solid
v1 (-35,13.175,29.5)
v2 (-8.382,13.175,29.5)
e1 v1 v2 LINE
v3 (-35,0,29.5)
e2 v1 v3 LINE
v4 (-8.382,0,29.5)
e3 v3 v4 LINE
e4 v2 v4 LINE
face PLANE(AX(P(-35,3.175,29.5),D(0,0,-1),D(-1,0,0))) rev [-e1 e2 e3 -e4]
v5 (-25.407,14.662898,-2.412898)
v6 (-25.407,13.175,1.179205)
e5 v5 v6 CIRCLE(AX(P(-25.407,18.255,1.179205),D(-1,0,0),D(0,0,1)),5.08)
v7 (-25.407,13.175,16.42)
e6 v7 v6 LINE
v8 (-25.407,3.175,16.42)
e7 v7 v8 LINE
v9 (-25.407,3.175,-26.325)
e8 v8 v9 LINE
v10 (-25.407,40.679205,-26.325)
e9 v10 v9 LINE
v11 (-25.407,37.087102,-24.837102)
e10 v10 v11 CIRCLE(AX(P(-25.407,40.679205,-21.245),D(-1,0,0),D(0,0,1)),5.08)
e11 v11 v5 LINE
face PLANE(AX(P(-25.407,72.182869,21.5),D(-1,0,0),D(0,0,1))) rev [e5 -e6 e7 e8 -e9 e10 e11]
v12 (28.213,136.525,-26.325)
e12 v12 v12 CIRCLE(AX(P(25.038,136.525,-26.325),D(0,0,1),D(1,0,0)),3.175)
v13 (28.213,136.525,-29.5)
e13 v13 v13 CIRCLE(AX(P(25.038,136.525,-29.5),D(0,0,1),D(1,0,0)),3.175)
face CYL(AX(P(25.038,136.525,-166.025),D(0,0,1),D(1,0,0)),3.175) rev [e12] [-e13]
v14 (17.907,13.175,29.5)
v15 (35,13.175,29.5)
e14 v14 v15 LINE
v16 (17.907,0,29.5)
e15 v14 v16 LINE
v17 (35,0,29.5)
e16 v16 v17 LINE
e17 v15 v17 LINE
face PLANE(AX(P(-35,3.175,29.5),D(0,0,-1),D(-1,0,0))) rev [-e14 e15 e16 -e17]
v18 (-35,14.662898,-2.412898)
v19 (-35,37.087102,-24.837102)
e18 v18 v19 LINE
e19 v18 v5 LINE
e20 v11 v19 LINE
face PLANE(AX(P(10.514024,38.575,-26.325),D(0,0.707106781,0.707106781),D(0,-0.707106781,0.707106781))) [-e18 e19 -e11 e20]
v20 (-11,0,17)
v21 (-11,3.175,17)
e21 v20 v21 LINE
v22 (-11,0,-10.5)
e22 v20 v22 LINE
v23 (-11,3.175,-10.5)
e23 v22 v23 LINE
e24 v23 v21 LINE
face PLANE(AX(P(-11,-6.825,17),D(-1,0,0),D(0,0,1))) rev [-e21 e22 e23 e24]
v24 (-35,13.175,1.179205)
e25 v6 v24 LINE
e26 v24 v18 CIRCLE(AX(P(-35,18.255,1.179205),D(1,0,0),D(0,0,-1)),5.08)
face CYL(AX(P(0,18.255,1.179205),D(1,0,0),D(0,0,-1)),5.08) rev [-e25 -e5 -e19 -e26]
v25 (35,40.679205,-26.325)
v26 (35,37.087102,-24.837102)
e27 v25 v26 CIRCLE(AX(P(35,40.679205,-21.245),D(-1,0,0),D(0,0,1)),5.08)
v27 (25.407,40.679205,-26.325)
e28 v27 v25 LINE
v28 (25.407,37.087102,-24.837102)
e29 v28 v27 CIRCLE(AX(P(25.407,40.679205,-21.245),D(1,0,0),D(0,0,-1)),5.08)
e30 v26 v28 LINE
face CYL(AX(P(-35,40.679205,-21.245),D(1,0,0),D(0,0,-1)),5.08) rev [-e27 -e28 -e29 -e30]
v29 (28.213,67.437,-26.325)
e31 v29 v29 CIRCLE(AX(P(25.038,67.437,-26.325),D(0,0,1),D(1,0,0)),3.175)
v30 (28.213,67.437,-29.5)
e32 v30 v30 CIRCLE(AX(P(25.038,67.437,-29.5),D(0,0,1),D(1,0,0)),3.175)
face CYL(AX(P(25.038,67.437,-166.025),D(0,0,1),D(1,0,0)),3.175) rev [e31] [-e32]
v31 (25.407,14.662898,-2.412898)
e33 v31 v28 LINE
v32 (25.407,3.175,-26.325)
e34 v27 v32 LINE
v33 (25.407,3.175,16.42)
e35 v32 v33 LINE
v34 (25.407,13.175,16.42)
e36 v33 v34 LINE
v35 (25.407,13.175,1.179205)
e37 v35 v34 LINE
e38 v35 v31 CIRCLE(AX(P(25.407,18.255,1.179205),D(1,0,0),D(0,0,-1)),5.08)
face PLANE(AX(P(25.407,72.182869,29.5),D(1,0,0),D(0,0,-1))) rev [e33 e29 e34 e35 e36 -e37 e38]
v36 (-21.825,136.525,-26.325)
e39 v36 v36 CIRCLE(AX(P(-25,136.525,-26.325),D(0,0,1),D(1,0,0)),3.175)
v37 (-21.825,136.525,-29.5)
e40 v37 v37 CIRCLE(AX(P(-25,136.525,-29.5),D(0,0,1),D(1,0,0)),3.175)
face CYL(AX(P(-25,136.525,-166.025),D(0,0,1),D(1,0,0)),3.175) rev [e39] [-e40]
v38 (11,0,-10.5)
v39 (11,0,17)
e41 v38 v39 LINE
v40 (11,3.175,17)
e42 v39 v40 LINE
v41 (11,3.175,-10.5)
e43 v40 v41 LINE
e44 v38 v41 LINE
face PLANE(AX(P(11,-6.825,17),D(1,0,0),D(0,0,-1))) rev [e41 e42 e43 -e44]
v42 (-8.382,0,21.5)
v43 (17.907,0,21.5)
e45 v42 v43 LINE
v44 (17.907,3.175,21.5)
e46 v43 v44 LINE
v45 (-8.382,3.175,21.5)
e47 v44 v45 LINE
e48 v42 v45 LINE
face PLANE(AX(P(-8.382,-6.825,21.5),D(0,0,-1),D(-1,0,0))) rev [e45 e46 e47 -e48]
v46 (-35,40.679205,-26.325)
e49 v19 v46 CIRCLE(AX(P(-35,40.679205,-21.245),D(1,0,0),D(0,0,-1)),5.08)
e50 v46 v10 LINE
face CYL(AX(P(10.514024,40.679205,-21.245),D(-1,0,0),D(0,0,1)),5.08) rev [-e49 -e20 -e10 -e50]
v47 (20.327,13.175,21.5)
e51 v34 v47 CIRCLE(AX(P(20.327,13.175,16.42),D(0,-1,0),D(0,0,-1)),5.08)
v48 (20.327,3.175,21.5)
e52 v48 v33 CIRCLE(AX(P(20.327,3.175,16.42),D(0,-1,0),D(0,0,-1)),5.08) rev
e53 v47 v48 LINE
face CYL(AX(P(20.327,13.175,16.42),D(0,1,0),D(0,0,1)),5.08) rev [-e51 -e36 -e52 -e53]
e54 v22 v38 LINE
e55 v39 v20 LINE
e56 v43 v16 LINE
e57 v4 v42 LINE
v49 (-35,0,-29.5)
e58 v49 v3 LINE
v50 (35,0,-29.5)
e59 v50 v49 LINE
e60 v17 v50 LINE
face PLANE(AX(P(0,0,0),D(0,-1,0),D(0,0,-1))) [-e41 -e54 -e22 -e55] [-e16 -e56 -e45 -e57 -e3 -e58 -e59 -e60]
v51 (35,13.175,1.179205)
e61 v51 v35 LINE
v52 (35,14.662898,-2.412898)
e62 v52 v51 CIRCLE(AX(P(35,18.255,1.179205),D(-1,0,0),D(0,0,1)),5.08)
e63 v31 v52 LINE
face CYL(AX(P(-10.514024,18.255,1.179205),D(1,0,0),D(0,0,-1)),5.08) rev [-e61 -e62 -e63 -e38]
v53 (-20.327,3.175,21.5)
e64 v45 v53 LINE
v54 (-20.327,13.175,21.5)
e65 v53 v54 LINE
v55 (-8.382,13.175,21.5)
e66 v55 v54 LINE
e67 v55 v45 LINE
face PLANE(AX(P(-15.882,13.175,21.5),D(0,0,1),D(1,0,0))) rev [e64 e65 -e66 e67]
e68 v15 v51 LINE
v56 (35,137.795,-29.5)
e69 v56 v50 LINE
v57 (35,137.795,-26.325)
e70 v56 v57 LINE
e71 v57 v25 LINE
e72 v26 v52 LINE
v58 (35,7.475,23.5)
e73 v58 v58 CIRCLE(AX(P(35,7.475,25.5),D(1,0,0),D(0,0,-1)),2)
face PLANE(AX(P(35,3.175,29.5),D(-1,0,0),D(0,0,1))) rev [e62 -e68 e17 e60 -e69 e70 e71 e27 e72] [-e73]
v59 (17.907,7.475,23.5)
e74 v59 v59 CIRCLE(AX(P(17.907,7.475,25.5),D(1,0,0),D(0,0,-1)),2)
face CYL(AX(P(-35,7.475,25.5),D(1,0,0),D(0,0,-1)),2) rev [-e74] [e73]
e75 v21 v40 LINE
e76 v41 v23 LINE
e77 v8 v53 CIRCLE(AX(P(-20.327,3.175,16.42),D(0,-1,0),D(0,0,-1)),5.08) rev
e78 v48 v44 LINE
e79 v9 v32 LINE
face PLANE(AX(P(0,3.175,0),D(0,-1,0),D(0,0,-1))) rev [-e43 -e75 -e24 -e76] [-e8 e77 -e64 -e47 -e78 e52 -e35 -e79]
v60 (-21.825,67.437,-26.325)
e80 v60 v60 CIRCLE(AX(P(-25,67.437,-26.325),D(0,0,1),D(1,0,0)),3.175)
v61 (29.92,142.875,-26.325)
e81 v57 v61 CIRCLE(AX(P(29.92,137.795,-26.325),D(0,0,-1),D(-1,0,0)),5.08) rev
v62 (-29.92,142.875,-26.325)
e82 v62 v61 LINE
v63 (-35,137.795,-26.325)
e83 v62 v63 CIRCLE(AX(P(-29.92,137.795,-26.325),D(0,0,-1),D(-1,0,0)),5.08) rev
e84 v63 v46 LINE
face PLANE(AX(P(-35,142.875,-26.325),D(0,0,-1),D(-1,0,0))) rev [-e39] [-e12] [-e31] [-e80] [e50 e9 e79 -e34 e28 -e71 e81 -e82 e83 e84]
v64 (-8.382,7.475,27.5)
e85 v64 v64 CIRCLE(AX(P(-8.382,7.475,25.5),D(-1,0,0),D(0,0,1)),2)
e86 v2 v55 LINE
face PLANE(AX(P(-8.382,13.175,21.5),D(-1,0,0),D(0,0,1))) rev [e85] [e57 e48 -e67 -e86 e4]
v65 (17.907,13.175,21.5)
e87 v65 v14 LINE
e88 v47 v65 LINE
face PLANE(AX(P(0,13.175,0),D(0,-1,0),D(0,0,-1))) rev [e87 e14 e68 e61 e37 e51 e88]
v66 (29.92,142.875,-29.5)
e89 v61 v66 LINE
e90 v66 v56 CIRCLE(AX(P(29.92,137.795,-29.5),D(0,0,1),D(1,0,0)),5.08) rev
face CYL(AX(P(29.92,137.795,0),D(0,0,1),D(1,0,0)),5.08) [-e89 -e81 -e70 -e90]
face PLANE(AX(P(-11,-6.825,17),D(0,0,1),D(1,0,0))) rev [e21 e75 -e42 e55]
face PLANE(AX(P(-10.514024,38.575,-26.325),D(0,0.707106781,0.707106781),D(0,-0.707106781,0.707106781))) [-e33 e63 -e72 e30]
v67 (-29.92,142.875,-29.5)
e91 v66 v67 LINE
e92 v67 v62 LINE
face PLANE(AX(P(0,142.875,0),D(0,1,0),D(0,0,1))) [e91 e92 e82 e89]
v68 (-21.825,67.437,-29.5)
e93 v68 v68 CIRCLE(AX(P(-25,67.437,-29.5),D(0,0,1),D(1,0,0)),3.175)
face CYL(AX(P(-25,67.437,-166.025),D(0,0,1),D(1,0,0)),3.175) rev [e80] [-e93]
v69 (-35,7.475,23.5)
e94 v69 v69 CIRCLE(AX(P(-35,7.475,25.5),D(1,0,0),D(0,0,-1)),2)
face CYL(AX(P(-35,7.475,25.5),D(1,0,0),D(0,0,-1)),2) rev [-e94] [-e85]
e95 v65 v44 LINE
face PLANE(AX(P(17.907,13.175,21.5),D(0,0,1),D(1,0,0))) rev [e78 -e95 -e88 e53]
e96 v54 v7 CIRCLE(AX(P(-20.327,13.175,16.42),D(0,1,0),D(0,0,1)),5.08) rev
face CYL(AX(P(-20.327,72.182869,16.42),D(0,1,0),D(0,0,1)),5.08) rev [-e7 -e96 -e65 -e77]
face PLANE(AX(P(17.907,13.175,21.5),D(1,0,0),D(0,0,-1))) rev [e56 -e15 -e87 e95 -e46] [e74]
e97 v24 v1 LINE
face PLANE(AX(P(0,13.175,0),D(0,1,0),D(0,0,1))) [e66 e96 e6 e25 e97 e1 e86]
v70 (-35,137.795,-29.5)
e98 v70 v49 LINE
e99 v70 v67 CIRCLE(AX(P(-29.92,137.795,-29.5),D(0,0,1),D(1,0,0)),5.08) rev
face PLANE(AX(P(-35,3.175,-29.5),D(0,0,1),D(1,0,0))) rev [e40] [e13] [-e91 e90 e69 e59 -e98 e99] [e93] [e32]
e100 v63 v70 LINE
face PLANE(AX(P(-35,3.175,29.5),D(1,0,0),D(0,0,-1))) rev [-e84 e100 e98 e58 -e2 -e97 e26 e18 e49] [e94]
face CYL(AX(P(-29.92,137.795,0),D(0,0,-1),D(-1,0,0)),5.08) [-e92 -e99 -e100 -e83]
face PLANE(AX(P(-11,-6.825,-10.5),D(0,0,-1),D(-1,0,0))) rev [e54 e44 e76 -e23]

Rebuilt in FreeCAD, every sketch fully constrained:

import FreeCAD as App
import Part
import Sketcher
Q = App.Units.Quantity


def edges_at(feature, points):
    """Names of the edges that pass closest to the given points."""
    edges = feature.Shape.Edges
    near = lambda p: min(range(len(edges)), key=lambda i: edges[i].distToShape(Part.Vertex(*p))[0])
    return sorted({f"Edge{near(p) + 1}" for p in points})


def add_polygon(sketch, points):
    """Adds a closed chain of lines whose ends are joined by coincident constraints."""
    first, n = sketch.GeometryCount, len(points)
    for a, b in zip(points, points[1:] + points[:1]):
        sketch.addGeometry(Part.LineSegment(App.Vector(*a, 0), App.Vector(*b, 0)), False)
    for i in range(n):
        sketch.addConstraint(Sketcher.Constraint("Coincident", first + i, 2, first + (i + 1) % n, 1))

doc = App.newDocument("Part")
body = doc.addObject("PartDesign::Body", "Body")

# Sketch on XZ plane
sketch1 = body.newObject("Sketcher::SketchObject", "Sketch")
sketch1.AttachmentSupport = (doc.getObject("XZ_Plane"), [""])
sketch1.MapMode = "FlatFace"
add_polygon(sketch1, [(-35, -30), (-35, 30), (35, 30), (35, -30)])  # lines 0-3
sketch1.addConstraint(Sketcher.Constraint("Vertical", 0))
sketch1.addConstraint(Sketcher.Constraint("Horizontal", 1))
sketch1.addConstraint(Sketcher.Constraint("Vertical", 2))
sketch1.addConstraint(Sketcher.Constraint("Horizontal", 3))
sketch1.addConstraint(Sketcher.Constraint("Symmetric", 0, 2, 2, 2, -1, 1))
sketch1.addConstraint(Sketcher.Constraint("DistanceX", 1, 1, 1, 2, Q("70 mm")))
sketch1.addConstraint(Sketcher.Constraint("DistanceY", 0, 1, 0, 2, Q("59 mm")))
pad1 = body.newObject("PartDesign::Pad", "Pad")
pad1.Profile = sketch1
pad1.Length = 3.175
pad1.Reversed = True

# Sketch on XZ plane
sketch2 = body.newObject("Sketcher::SketchObject", "Sketch001")
sketch2.AttachmentSupport = (doc.getObject("XZ_Plane"), [""])
sketch2.MapMode = "FlatFace"
sketch2.AttachmentOffset = App.Placement(App.Vector(0, 0, -3.175), App.Rotation())
add_polygon(sketch2, [(-35, -29.5), (-35, -26.3), (35, -26.3), (35, -29.5)])  # lines 0-3
sketch2.addConstraint(Sketcher.Constraint("Vertical", 0))
sketch2.addConstraint(Sketcher.Constraint("Horizontal", 1))
sketch2.addConstraint(Sketcher.Constraint("Vertical", 2))
sketch2.addConstraint(Sketcher.Constraint("Horizontal", 3))
sketch2.addConstraint(Sketcher.Constraint("DistanceX", 1, 1, 1, 2, Q("70 mm")))
sketch2.addConstraint(Sketcher.Constraint("DistanceX", 0, 2, -1, 1, Q("35 mm")))
sketch2.addConstraint(Sketcher.Constraint("DistanceY", 2, 2, -1, 1, Q("29.5 mm")))
sketch2.addConstraint(Sketcher.Constraint("DistanceY", 0, 1, 0, 2, Q("3.175 mm")))
pad2 = body.newObject("PartDesign::Pad", "Pad001")
pad2.Profile = sketch2
pad2.Length = 139.7
pad2.Reversed = True

# Sketch on XZ plane
sketch3 = body.newObject("Sketcher::SketchObject", "Sketch002")
sketch3.AttachmentSupport = (doc.getObject("XZ_Plane"), [""])
sketch3.MapMode = "FlatFace"
sketch3.AttachmentOffset = App.Placement(App.Vector(0, 0, -3.175), App.Rotation())
add_polygon(sketch3, [(-16, 22), (-16, 30), (-8, 30), (-8, 22)])  # lines 0-3
add_polygon(sketch3, [(18, 22), (18, 30), (25, 30), (25, 22)])  # lines 4-7
sketch3.addConstraint(Sketcher.Constraint("Vertical", 0))
sketch3.addConstraint(Sketcher.Constraint("Horizontal", 1))
sketch3.addConstraint(Sketcher.Constraint("Vertical", 2))
sketch3.addConstraint(Sketcher.Constraint("Horizontal", 3))
sketch3.addConstraint(Sketcher.Constraint("Vertical", 4))
sketch3.addConstraint(Sketcher.Constraint("Horizontal", 5))
sketch3.addConstraint(Sketcher.Constraint("Vertical", 6))
sketch3.addConstraint(Sketcher.Constraint("Horizontal", 7))
sketch3.addConstraint(Sketcher.Constraint("Horizontal", 1, 2, 4, 2))
sketch3.addConstraint(Sketcher.Constraint("Horizontal", 3, 2, 6, 2))
sketch3.addConstraint(Sketcher.Constraint("Equal", 3, 5))
sketch3.addConstraint(Sketcher.Constraint("DistanceY", 0, 1, 0, 2, Q("8 mm")))
sketch3.addConstraint(Sketcher.Constraint("DistanceX", 1, 1, 1, 2, Q("7.5 mm")))
sketch3.addConstraint(Sketcher.Constraint("DistanceY", -1, 1, 0, 2, Q("29.5 mm")))
sketch3.addConstraint(Sketcher.Constraint("DistanceX", 0, 2, -1, 1, Q("15.882 mm")))
sketch3.addConstraint(Sketcher.Constraint("DistanceX", -1, 1, 4, 2, Q("17.907 mm")))
pad3 = body.newObject("PartDesign::Pad", "Pad002")
pad3.Profile = sketch3
pad3.Length = 10
pad3.Reversed = True

# Sketch on XZ plane
sketch4 = body.newObject("Sketcher::SketchObject", "Sketch003")
sketch4.AttachmentSupport = (doc.getObject("XZ_Plane"), [""])
sketch4.MapMode = "FlatFace"
sketch4.AttachmentOffset = App.Placement(App.Vector(0, 0, -3.175), App.Rotation())
add_polygon(sketch4, [(-8, 22), (-8, 30), (18, 30), (18, 22)])  # lines 0-3
sketch4.addConstraint(Sketcher.Constraint("Vertical", 0))
sketch4.addConstraint(Sketcher.Constraint("Horizontal", 1))
sketch4.addConstraint(Sketcher.Constraint("Vertical", 2))
sketch4.addConstraint(Sketcher.Constraint("Horizontal", 3))
sketch4.addConstraint(Sketcher.Constraint("DistanceY", 0, 1, 0, 2, Q("8 mm")))
sketch4.addConstraint(Sketcher.Constraint("DistanceY", -1, 1, 0, 2, Q("29.5 mm")))
sketch4.addConstraint(Sketcher.Constraint("DistanceX", 1, 1, 1, 2, Q("26.289 mm")))
sketch4.addConstraint(Sketcher.Constraint("DistanceX", 0, 2, -1, 1, Q("8.382 mm")))
pocket1 = body.newObject("PartDesign::Pocket", "Pocket")
pocket1.Profile = sketch4
pocket1.Length = 10
pocket1.Reversed = True

# Sketch on XY plane
sketch5 = body.newObject("Sketcher::SketchObject", "Sketch004")
sketch5.AttachmentSupport = (doc.getObject("XY_Plane"), [""])
sketch5.MapMode = "FlatFace"
sketch5.AttachmentOffset = App.Placement(App.Vector(0, 0, -26.325), App.Rotation())
sketch5.addGeometry(Part.Circle(App.Vector(-25, 136.5, 0), App.Vector(0, 0, 1), 3.2), False)
sketch5.addGeometry(Part.Circle(App.Vector(25, 136.5, 0), App.Vector(0, 0, 1), 3.2), False)
sketch5.addGeometry(Part.Circle(App.Vector(25, 67.4, 0), App.Vector(0, 0, 1), 3.2), False)
sketch5.addGeometry(Part.Circle(App.Vector(-25, 67.4, 0), App.Vector(0, 0, 1), 3.2), False)
sketch5.addConstraint(Sketcher.Constraint("Equal", 0, 1))
sketch5.addConstraint(Sketcher.Constraint("Equal", 1, 2))
sketch5.addConstraint(Sketcher.Constraint("Equal", 2, 3))
sketch5.addConstraint(Sketcher.Constraint("Horizontal", 0, 3, 1, 3))
sketch5.addConstraint(Sketcher.Constraint("Horizontal", 2, 3, 3, 3))
sketch5.addConstraint(Sketcher.Constraint("Vertical", 1, 3, 2, 3))
sketch5.addConstraint(Sketcher.Constraint("Vertical", 0, 3, 3, 3))
sketch5.addConstraint(Sketcher.Constraint("Diameter", 0, Q("6.35 mm")))
sketch5.addConstraint(Sketcher.Constraint("DistanceX", 0, 3, -1, 1, Q("25 mm")))
sketch5.addConstraint(Sketcher.Constraint("DistanceY", -1, 1, 0, 3, Q("136.525 mm")))
sketch5.addConstraint(Sketcher.Constraint("DistanceX", -1, 1, 1, 3, Q("25.038 mm")))
sketch5.addConstraint(Sketcher.Constraint("DistanceY", -1, 1, 2, 3, Q("67.437 mm")))
pocket2 = body.newObject("PartDesign::Pocket", "Pocket001")
pocket2.Profile = sketch5
pocket2.Length = 139.7

# Sketch on XZ plane
sketch6 = body.newObject("Sketcher::SketchObject", "Sketch005")
sketch6.AttachmentSupport = (doc.getObject("XZ_Plane"), [""])
sketch6.MapMode = "FlatFace"
sketch6.AttachmentOffset = App.Placement(App.Vector(0, 0, -3.175), App.Rotation())
add_polygon(sketch6, [(25, -26), (25, 30), (35, 30), (35, -26)])  # lines 0-3
add_polygon(sketch6, [(-25, -26), (-35, -26), (-35, 30), (-16, 30), (-16, 22), (-25, 22)])  # lines 4-9
sketch6.addConstraint(Sketcher.Constraint("Vertical", 0))
sketch6.addConstraint(Sketcher.Constraint("Horizontal", 1))
sketch6.addConstraint(Sketcher.Constraint("Vertical", 2))
sketch6.addConstraint(Sketcher.Constraint("Horizontal", 3))
sketch6.addConstraint(Sketcher.Constraint("Horizontal", 4))
sketch6.addConstraint(Sketcher.Constraint("Vertical", 5))
sketch6.addConstraint(Sketcher.Constraint("Horizontal", 6))
sketch6.addConstraint(Sketcher.Constraint("Vertical", 7))
sketch6.addConstraint(Sketcher.Constraint("Horizontal", 8))
sketch6.addConstraint(Sketcher.Constraint("Vertical", 9))
sketch6.addConstraint(Sketcher.Constraint("Symmetric", 2, 2, 4, 2, -2))
sketch6.addConstraint(Sketcher.Constraint("Horizontal", 1, 2, 5, 2))
sketch6.addConstraint(Sketcher.Constraint("Equal", 3, 4))
sketch6.addConstraint(Sketcher.Constraint("DistanceY", 7, 2, 7, 1, Q("8 mm")))
sketch6.addConstraint(Sketcher.Constraint("DistanceX", -1, 1, 1, 2, Q("35 mm")))
sketch6.addConstraint(Sketcher.Constraint("DistanceY", -1, 1, 0, 2, Q("29.5 mm")))
sketch6.addConstraint(Sketcher.Constraint("DistanceX", 1, 1, 1, 2, Q("9.593 mm")))
sketch6.addConstraint(Sketcher.Constraint("DistanceX", 6, 1, 6, 2, Q("19.118 mm")))
sketch6.addConstraint(Sketcher.Constraint("DistanceY", 0, 1, 0, 2, Q("55.825 mm")))
pad4 = body.newObject("PartDesign::Pad", "Pad003")
pad4.Profile = sketch6
pad4.Length = 10
pad4.Reversed = True

# Sketch on XZ plane
sketch7 = body.newObject("Sketcher::SketchObject", "Sketch006")
sketch7.AttachmentSupport = (doc.getObject("XZ_Plane"), [""])
sketch7.MapMode = "FlatFace"
sketch7.AttachmentOffset = App.Placement(App.Vector(0, 0, -3.175), App.Rotation())
add_polygon(sketch7, [(-11, -10), (-11, 17), (11, 17), (11, -10)])  # lines 0-3
sketch7.addConstraint(Sketcher.Constraint("Vertical", 0))
sketch7.addConstraint(Sketcher.Constraint("Horizontal", 1))
sketch7.addConstraint(Sketcher.Constraint("Vertical", 2))
sketch7.addConstraint(Sketcher.Constraint("Horizontal", 3))
sketch7.addConstraint(Sketcher.Constraint("DistanceX", 1, 1, 1, 2, Q("22 mm")))
sketch7.addConstraint(Sketcher.Constraint("DistanceY", 0, 1, 0, 2, Q("27.5 mm")))
sketch7.addConstraint(Sketcher.Constraint("DistanceX", 0, 2, -1, 1, Q("11 mm")))
sketch7.addConstraint(Sketcher.Constraint("DistanceY", -1, 1, 0, 2, Q("17 mm")))
pocket3 = body.newObject("PartDesign::Pocket", "Pocket002")
pocket3.Profile = sketch7
pocket3.Length = 10
pocket3.Reversed = True

# Sketch on YZ plane
sketch8 = body.newObject("Sketcher::SketchObject", "Sketch007")
sketch8.AttachmentSupport = (doc.getObject("YZ_Plane"), [""])
sketch8.MapMode = "FlatFace"
sketch8.AttachmentOffset = App.Placement(App.Vector(0, 0, -8.382), App.Rotation())
sketch8.addGeometry(Part.Circle(App.Vector(7.5, 25.5, 0), App.Vector(0, 0, 1), 2), False)
sketch8.addConstraint(Sketcher.Constraint("Diameter", 0, Q("4 mm")))
sketch8.addConstraint(Sketcher.Constraint("DistanceY", -1, 1, 0, 3, Q("25.5 mm")))
sketch8.addConstraint(Sketcher.Constraint("DistanceX", -1, 1, 0, 3, Q("7.475 mm")))
pocket4 = body.newObject("PartDesign::Pocket", "Pocket003")
pocket4.Profile = sketch8
pocket4.Type = "ThroughAll"
pocket4.Midplane = True

# Sketch on YZ plane
sketch9 = body.newObject("Sketcher::SketchObject", "Sketch008")
sketch9.AttachmentSupport = (doc.getObject("YZ_Plane"), [""])
sketch9.MapMode = "FlatFace"
sketch9.AttachmentOffset = App.Placement(App.Vector(0, 0, -35), App.Rotation())
add_polygon(sketch9, [(39, -26), (13, -26), (13, -1)])  # lines 0-2
sketch9.addConstraint(Sketcher.Constraint("Horizontal", 0))
sketch9.addConstraint(Sketcher.Constraint("Vertical", 1))
sketch9.addConstraint(Sketcher.Constraint("Equal", 0, 1))
sketch9.addConstraint(Sketcher.Constraint("DistanceX", 0, 2, 0, 1, Q("25.4 mm")))
sketch9.addConstraint(Sketcher.Constraint("DistanceX", -1, 1, 0, 2, Q("13.175 mm")))
sketch9.addConstraint(Sketcher.Constraint("DistanceY", 0, 2, -1, 1, Q("26.325 mm")))
pad5 = body.newObject("PartDesign::Pad", "Pad004")
pad5.Profile = sketch9
pad5.Length = 9.593

# Sketch on YZ plane
sketch10 = body.newObject("Sketcher::SketchObject", "Sketch009")
sketch10.AttachmentSupport = (doc.getObject("YZ_Plane"), [""])
sketch10.MapMode = "FlatFace"
sketch10.AttachmentOffset = App.Placement(App.Vector(0, 0, 35), App.Rotation())
add_polygon(sketch10, [(13, -26), (39, -26), (13, -1)])  # lines 0-2
sketch10.addConstraint(Sketcher.Constraint("Horizontal", 0))
sketch10.addConstraint(Sketcher.Constraint("Vertical", 2))
sketch10.addConstraint(Sketcher.Constraint("Equal", 0, 2))
sketch10.addConstraint(Sketcher.Constraint("DistanceX", 0, 1, 0, 2, Q("25.4 mm")))
sketch10.addConstraint(Sketcher.Constraint("DistanceX", -1, 1, 0, 2, Q("38.575 mm")))
sketch10.addConstraint(Sketcher.Constraint("DistanceY", 0, 2, -1, 1, Q("26.325 mm")))
pad6 = body.newObject("PartDesign::Pad", "Pad005")
pad6.Profile = sketch10
pad6.Length = 9.593
pad6.Reversed = True
doc.recompute()

fillet = body.newObject("PartDesign::Fillet", "Fillet")
fillet.Base = (pad6, edges_at(pad6, [(-35, 142.875, -27.913), (35, 142.875, -27.913)]))
fillet.Radius = 5.08
doc.recompute()

fillet2 = body.newObject("PartDesign::Fillet", "Fillet001")
fillet2.Base = (fillet, edges_at(fillet, [
    (-30.203, 13.175, -0.925),
    (-30.203, 38.575, -26.325),
    (30.203, 13.175, -0.925),
    (30.203, 38.575, -26.325),
]))
fillet2.Radius = 5.08
doc.recompute()

fillet3 = body.newObject("PartDesign::Fillet", "Fillet002")
fillet3.Base = (fillet2, edges_at(fillet2, [(-25.407, 8.175, 21.5), (25.407, 8.175, 21.5)]))
fillet3.Radius = 5.08

doc.recompute()
